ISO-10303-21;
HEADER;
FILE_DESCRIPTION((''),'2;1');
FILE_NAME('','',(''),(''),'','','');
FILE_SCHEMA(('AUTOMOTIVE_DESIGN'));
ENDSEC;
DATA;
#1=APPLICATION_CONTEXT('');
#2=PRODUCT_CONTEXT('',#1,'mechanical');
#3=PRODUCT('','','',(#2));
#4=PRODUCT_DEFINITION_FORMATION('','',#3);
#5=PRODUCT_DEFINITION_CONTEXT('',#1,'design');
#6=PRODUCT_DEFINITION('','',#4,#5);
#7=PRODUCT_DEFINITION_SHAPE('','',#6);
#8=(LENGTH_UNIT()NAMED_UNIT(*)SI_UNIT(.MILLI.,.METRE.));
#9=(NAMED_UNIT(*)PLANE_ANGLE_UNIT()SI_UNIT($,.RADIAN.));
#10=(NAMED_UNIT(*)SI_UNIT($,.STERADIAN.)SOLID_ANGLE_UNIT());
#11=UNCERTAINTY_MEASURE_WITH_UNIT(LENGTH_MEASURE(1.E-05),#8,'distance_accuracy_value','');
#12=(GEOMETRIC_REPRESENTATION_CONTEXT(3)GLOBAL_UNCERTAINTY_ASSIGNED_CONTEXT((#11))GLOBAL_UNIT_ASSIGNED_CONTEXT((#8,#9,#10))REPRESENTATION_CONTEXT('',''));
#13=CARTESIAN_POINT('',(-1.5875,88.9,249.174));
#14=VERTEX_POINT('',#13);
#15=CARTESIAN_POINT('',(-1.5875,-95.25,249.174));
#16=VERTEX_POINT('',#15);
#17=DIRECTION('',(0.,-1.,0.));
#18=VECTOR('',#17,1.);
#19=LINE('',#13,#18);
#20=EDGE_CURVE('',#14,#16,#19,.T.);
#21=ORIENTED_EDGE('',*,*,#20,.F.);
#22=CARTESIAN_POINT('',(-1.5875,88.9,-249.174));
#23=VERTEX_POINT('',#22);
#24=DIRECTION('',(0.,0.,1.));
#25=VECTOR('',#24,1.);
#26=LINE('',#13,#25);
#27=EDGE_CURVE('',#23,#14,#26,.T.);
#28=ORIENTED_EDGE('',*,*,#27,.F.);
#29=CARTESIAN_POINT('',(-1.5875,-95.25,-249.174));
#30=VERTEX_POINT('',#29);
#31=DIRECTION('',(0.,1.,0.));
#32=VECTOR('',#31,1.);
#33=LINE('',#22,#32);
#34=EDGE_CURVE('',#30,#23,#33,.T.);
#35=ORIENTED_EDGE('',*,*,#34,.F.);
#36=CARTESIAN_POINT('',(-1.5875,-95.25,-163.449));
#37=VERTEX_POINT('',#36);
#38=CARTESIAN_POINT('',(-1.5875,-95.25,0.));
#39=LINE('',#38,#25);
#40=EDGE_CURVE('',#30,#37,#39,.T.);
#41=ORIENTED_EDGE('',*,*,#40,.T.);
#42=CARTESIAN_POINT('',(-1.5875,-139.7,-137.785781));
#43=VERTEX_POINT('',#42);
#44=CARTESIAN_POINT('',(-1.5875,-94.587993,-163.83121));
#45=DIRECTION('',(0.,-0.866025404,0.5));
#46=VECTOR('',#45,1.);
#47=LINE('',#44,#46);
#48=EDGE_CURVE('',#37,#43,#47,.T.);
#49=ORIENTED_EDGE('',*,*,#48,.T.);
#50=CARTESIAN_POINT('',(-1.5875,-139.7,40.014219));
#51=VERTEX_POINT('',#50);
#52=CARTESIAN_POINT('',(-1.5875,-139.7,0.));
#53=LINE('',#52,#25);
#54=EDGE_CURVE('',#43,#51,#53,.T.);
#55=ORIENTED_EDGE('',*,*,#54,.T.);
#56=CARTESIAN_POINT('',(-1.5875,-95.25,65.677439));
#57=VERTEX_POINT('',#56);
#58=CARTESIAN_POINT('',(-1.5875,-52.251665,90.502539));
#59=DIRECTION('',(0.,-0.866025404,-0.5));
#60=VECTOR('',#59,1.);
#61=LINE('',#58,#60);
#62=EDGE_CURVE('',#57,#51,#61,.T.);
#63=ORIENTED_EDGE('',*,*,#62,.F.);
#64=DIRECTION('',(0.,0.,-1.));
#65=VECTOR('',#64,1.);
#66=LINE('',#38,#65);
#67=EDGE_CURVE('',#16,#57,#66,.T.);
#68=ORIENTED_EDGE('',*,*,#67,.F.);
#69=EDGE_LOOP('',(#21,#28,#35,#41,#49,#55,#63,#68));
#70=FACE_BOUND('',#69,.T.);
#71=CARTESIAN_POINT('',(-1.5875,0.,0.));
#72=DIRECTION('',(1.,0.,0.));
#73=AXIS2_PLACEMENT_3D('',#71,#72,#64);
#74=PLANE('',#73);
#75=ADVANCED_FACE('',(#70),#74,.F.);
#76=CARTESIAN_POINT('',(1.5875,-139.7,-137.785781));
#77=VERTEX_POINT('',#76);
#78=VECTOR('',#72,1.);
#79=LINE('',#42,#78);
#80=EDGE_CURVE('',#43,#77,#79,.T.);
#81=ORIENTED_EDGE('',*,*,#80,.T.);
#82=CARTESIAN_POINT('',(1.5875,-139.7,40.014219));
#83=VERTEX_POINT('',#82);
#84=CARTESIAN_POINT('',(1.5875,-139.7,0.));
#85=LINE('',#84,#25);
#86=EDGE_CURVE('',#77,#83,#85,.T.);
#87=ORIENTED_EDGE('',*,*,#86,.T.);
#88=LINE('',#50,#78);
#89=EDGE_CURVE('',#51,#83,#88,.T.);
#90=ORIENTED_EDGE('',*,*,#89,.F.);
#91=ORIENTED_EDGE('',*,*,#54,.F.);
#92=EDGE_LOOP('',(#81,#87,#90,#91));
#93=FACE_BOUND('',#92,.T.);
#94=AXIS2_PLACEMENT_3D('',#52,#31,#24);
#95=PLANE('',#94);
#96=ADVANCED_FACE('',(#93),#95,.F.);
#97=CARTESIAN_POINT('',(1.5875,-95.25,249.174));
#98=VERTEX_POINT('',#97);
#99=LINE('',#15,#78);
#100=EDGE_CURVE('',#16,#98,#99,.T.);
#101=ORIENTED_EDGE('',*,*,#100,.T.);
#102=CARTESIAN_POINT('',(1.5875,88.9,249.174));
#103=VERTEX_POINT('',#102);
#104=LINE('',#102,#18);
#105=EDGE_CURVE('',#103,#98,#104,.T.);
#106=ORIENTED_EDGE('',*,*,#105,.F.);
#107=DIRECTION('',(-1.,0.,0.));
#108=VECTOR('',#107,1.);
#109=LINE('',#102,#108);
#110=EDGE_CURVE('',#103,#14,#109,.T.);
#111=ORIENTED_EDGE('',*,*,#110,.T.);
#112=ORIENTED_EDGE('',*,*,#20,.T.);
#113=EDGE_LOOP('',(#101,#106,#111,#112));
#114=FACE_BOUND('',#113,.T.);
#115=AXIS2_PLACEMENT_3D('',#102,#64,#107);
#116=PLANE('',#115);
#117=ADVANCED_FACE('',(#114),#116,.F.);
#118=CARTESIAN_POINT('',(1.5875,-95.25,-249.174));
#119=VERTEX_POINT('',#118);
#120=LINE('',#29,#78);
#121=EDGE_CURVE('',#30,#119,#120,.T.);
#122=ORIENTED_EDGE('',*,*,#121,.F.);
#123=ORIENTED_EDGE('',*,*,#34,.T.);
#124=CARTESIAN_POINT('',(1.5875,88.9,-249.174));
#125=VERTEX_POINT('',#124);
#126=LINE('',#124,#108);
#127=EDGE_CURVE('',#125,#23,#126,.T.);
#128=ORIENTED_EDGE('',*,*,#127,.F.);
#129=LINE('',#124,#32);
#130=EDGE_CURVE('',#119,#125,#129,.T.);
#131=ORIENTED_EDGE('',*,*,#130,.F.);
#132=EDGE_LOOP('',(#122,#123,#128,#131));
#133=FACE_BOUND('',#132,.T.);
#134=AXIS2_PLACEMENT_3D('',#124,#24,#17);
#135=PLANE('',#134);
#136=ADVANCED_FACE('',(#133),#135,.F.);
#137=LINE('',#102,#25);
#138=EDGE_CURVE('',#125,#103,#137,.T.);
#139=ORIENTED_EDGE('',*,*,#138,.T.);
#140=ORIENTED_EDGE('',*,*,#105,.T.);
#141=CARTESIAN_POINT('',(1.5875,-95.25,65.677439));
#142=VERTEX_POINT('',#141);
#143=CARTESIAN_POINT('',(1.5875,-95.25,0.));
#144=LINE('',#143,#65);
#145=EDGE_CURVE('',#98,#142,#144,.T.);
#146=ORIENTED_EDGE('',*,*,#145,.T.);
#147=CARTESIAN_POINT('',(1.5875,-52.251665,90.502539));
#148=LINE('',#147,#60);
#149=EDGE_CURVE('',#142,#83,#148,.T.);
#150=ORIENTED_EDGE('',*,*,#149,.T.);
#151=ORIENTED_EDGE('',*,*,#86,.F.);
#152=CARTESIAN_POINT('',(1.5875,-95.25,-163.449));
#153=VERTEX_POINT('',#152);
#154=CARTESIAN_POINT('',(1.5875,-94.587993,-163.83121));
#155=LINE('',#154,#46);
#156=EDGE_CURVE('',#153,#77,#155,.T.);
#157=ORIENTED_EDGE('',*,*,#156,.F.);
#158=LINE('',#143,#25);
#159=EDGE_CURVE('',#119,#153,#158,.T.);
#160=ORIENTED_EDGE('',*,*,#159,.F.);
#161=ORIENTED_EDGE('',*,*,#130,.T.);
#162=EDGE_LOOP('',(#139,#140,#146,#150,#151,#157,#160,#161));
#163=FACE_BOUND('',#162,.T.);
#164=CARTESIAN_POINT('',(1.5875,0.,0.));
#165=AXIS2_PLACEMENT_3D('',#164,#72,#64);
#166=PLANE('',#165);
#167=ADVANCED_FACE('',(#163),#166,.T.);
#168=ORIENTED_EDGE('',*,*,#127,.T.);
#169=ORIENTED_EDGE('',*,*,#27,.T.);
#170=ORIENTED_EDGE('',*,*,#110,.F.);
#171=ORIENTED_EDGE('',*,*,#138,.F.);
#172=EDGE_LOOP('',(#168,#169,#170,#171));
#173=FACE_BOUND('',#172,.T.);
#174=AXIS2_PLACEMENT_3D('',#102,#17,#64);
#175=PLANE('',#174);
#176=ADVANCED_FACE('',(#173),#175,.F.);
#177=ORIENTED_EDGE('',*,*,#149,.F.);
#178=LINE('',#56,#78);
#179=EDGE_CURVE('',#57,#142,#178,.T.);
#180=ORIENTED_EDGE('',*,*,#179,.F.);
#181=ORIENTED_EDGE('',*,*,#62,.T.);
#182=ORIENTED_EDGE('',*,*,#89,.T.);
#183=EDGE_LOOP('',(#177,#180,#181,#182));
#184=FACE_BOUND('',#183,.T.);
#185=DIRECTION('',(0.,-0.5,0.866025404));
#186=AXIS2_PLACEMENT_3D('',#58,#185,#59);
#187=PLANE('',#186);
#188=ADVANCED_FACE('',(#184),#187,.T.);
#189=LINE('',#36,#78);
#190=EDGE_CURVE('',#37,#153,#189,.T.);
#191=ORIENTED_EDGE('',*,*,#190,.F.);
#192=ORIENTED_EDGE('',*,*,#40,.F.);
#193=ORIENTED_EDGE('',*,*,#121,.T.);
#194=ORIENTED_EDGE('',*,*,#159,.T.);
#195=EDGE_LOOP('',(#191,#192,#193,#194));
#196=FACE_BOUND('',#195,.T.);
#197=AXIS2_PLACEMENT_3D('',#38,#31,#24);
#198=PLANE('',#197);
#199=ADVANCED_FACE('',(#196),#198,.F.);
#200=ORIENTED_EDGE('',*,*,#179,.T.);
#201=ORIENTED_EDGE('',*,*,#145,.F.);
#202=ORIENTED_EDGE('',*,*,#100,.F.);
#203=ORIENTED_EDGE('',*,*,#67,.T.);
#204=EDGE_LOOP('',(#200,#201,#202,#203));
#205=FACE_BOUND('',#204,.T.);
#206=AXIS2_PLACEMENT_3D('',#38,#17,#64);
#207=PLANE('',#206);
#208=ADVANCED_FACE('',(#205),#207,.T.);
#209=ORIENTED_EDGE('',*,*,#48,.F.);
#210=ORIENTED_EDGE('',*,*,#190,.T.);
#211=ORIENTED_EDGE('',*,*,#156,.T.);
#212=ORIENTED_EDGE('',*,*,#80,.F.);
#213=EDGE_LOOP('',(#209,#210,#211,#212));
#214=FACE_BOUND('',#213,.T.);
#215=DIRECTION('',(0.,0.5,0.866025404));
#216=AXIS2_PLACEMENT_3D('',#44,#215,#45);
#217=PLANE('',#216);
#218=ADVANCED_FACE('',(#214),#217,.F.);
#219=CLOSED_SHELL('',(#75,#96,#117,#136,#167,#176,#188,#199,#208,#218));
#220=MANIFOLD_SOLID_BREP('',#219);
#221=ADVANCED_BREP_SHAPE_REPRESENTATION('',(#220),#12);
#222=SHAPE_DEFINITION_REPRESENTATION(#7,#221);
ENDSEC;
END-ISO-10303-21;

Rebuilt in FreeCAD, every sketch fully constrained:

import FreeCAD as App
import Part
import Sketcher
from FreeCAD import Vector
Q = App.Units.Quantity


def add_polygon(sketch, points):
    """Adds a closed chain of lines whose ends are joined by coincident constraints."""
    first, n = sketch.GeometryCount, len(points)
    for a, b in zip(points, points[1:] + points[:1]):
        sketch.addGeometry(Part.LineSegment(App.Vector(*a, 0), App.Vector(*b, 0)), False)
    for i in range(n):
        sketch.addConstraint(Sketcher.Constraint("Coincident", first + i, 2, first + (i + 1) % n, 1))

doc = App.newDocument("Part")
body = doc.addObject("PartDesign::Body", "Body")

# Sketch on YZ plane
sketch1 = body.newObject("Sketcher::SketchObject", "Sketch")
sketch1.AttachmentSupport = (doc.getObject("YZ_Plane"), [""])
sketch1.MapMode = "FlatFace"
add_polygon(sketch1, [(89, 249), (-89, 249), (-89, -249), (89, -249)])  # lines 0-3
sketch1.addConstraint([
    Sketcher.Constraint("Horizontal", 0),
    Sketcher.Constraint("Vertical", 1),
    Sketcher.Constraint("Horizontal", 2),
    Sketcher.Constraint("Vertical", 3),
    Sketcher.Constraint("Symmetric", 0, 2, 2, 2, -1, 1),
    Sketcher.Constraint("DistanceX", 0, 2, 0, 1, Q("7 in")),
    Sketcher.Constraint("DistanceY", 1, 2, 1, 1, Q("19.62 in")),
])
pad1 = body.newObject("PartDesign::Pad", "Pad")
pad1.Profile = sketch1
pad1.Length = Q("0.125 in")
pad1.Midplane = True

# Sketch on YZ plane
sketch2 = body.newObject("Sketcher::SketchObject", "Sketch001")
sketch2.AttachmentSupport = (doc.getObject("YZ_Plane"), [""])
sketch2.MapMode = "FlatFace"
sketch2.AttachmentOffset = App.Placement(Vector(0, 0, 0.0625 * 25.4), App.Rotation())
add_polygon(sketch2, [(-95, -249), (-89, -249), (-89, 249), (-95, 249), (-95, 66), (-140, 40), (-140, -138), (-95, -163)])  # lines 0-7
sketch2.addConstraint([
    Sketcher.Constraint("Horizontal", 0),
    Sketcher.Constraint("Vertical", 1),
    Sketcher.Constraint("Horizontal", 2),
    Sketcher.Constraint("Vertical", 3),
    Sketcher.Constraint("Vertical", 5),
    Sketcher.Constraint("Vertical", 7),
    Sketcher.Constraint("Symmetric", 2, 2, 7, 2, -1),
    Sketcher.Constraint("Equal", 4, 6),
    Sketcher.Constraint("DistanceY", 5, 2, 5, 1, Q("7 in")),
    Sketcher.Constraint("Angle", 4, Q("-150 deg")),
    Sketcher.Constraint("DistanceX", 4, 2, 1, 2, Q("2 in")),
    Sketcher.Constraint("DistanceX", 0, 1, 0, 2, Q("0.25 in")),
    Sketcher.Constraint("DistanceY", 1, 1, 1, 2, Q("19.62 in")),
    Sketcher.Constraint("DistanceX", 0, 2, -1, 1, Q("3.5 in")),
    Sketcher.Constraint("DistanceY", 7, 2, 7, 1, Q("3.375 in")),
])
pad2 = body.newObject("PartDesign::Pad", "Pad001")
pad2.Profile = sketch2
pad2.Length = Q("0.125 in")
pad2.Reversed = True

doc.recompute()
